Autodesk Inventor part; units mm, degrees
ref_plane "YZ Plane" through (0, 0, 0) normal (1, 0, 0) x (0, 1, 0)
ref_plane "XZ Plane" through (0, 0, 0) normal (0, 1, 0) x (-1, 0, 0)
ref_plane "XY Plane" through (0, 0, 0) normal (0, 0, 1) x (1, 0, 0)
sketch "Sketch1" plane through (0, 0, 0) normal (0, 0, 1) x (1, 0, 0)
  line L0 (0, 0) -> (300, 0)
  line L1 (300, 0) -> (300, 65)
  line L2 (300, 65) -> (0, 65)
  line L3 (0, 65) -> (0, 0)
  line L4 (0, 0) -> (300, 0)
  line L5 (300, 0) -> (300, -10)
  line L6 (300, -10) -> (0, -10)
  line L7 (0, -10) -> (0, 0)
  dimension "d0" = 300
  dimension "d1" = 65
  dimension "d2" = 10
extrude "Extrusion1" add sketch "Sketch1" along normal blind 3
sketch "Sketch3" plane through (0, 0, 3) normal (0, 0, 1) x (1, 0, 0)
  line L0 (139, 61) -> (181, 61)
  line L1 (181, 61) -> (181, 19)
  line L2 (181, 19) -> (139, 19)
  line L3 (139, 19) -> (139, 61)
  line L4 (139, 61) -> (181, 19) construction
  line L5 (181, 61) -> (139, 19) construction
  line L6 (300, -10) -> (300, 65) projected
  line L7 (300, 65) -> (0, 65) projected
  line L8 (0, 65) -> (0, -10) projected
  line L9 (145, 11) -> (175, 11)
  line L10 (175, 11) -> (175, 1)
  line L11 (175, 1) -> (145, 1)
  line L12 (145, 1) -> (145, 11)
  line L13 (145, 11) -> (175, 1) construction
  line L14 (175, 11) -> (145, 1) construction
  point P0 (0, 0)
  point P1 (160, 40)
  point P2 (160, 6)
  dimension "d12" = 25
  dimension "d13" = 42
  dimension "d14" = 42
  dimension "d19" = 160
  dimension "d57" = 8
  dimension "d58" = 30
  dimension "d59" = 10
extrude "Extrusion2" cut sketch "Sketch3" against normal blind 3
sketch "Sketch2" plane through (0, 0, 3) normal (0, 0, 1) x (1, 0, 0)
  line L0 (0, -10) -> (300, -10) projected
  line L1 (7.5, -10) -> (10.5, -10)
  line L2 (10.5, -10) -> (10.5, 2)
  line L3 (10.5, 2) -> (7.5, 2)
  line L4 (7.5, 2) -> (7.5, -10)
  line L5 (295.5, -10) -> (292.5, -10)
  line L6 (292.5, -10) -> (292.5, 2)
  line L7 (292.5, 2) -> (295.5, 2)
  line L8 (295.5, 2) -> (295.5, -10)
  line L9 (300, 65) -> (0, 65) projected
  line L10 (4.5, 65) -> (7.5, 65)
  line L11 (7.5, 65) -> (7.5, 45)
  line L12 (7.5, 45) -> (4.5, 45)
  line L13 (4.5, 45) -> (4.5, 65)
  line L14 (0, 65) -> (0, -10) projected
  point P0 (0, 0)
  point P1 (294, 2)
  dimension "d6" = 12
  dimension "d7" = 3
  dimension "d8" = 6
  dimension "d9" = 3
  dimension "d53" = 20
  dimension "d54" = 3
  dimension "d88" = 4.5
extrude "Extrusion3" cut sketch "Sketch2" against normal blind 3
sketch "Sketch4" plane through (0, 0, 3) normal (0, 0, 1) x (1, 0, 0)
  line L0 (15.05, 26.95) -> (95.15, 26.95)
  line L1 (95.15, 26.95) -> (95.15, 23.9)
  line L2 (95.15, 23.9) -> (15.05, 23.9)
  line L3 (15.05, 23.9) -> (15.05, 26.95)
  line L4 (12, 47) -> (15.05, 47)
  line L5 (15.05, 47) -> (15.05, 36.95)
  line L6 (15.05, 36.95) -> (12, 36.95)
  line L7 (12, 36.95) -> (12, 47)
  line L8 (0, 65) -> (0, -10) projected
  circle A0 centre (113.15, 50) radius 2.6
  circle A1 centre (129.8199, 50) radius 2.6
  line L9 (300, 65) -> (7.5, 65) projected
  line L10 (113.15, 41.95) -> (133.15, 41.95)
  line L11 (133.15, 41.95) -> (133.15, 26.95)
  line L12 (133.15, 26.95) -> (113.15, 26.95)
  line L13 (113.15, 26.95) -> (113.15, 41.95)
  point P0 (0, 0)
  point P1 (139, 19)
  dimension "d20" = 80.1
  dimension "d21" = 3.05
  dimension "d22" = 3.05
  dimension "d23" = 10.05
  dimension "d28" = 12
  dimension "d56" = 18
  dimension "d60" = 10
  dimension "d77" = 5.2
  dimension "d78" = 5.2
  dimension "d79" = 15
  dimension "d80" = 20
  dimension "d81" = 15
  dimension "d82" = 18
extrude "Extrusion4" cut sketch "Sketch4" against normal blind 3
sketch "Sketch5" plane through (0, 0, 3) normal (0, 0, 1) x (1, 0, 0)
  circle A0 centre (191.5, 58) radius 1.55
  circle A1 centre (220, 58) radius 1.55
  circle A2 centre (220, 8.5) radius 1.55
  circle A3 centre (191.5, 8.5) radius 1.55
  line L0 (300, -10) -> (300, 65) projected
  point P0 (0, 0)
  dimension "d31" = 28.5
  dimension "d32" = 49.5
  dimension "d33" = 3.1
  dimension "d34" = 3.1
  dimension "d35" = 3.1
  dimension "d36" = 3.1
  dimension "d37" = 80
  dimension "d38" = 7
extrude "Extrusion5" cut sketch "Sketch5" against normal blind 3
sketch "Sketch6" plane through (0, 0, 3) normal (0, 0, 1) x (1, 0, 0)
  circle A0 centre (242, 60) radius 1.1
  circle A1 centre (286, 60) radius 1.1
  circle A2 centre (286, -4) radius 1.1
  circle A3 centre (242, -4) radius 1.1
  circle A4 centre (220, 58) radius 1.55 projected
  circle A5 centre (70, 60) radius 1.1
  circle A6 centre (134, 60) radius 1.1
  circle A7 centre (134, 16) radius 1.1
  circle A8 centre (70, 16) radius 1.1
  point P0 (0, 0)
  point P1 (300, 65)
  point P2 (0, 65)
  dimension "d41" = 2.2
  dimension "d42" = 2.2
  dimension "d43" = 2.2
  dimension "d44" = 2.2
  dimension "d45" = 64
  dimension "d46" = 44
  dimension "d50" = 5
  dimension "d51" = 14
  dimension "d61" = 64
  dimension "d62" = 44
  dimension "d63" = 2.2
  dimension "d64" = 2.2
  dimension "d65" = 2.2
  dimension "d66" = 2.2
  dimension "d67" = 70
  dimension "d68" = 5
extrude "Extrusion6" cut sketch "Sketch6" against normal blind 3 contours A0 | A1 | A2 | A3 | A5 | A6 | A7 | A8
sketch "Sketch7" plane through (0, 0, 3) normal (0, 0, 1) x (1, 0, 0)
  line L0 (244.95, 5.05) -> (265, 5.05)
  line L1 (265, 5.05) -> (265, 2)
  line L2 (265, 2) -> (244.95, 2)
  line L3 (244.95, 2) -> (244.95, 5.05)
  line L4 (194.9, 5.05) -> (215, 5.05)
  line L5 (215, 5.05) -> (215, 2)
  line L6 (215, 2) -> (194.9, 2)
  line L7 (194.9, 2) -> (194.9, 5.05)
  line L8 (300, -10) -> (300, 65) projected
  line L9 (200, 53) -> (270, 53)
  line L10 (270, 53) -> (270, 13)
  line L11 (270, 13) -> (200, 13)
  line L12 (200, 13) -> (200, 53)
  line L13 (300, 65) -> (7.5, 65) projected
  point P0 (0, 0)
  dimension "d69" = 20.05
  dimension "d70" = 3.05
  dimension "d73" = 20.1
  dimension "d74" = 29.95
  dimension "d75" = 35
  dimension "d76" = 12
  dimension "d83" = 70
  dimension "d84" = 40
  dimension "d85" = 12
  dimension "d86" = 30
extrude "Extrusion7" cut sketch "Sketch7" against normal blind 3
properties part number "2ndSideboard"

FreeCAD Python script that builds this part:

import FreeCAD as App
import Part
import Sketcher

V = App.Vector


def add_polygon(sketch, points):
    """Adds a closed chain of lines whose ends are joined by coincident constraints."""
    first, n = sketch.GeometryCount, len(points)
    for a, b in zip(points, points[1:] + points[:1]):
        sketch.addGeometry(Part.LineSegment(App.Vector(*a, 0), App.Vector(*b, 0)), False)
    for i in range(n):
        sketch.addConstraint(Sketcher.Constraint("Coincident", first + i, 2, first + (i + 1) % n, 1))

doc = App.newDocument("Part")
body = doc.addObject("PartDesign::Body", "Body")

sketch1 = body.newObject("Sketcher::SketchObject", "Sketch")
sketch1.AttachmentSupport = (doc.getObject("XY_Plane"), [""])
sketch1.MapMode = "FlatFace"
add_polygon(sketch1, [(0, 65), (0, -10), (300, -10), (300, 65)])
sketch1.addConstraint([
    Sketcher.Constraint("Vertical", 0),
    Sketcher.Constraint("Horizontal", 1),
    Sketcher.Constraint("Vertical", 2),
    Sketcher.Constraint("Horizontal", 3),
    Sketcher.Constraint("PointOnObject", 0, 2, -2),
    Sketcher.Constraint("DistanceX", 1, 1, 1, 2, 300.0),
    Sketcher.Constraint("DistanceY", 0, 2, -1, 1, 10.0),
    Sketcher.Constraint("DistanceY", -1, 1, 2, 2, 65.0),
])
pad1 = body.newObject("PartDesign::Pad", "Pad")
pad1.Profile = sketch1
pad1.Length = 3

sketch2 = body.newObject("Sketcher::SketchObject", "Sketch001")
sketch2.AttachmentSupport = (doc.getObject("XY_Plane"), [""])
sketch2.MapMode = "FlatFace"
sketch2.AttachmentOffset = App.Placement(V(0, 0, 3), App.Rotation())
add_polygon(sketch2, [(181, 61), (139, 61), (139, 19), (181, 19)])
add_polygon(sketch2, [(175, 11), (145, 11), (145, 1), (175, 1)])
sketch2.addConstraint([
    Sketcher.Constraint("Horizontal", 0),
    Sketcher.Constraint("Vertical", 1),
    Sketcher.Constraint("Horizontal", 2),
    Sketcher.Constraint("Vertical", 3),
    Sketcher.Constraint("Horizontal", 4),
    Sketcher.Constraint("Vertical", 5),
    Sketcher.Constraint("Horizontal", 6),
    Sketcher.Constraint("Vertical", 7),
    Sketcher.Constraint("Equal", 2, 1),
    Sketcher.Constraint("DistanceX", 0, 2, 0, 1, 42.0),
    Sketcher.Constraint("DistanceX", 4, 2, 4, 1, 30.0),
    Sketcher.Constraint("DistanceY", 5, 2, 5, 1, 10.0),
    Sketcher.Constraint("DistanceY", 4, 2, 1, 2, 8.0),
    Sketcher.Constraint("DistanceX", -1, 1, 0, 2, 139.0),
    Sketcher.Constraint("DistanceY", -1, 1, 0, 2, 61.0),
    Sketcher.Constraint("DistanceX", -1, 1, 4, 2, 145.0),
])
pocket1 = body.newObject("PartDesign::Pocket", "Pocket")
pocket1.Profile = sketch2
pocket1.Length = 3

sketch3 = body.newObject("Sketcher::SketchObject", "Sketch002")
sketch3.AttachmentSupport = (doc.getObject("XY_Plane"), [""])
sketch3.MapMode = "FlatFace"
sketch3.AttachmentOffset = App.Placement(V(0, 0, 3), App.Rotation())
add_polygon(sketch3, [(292.5, 2), (292.5, -10), (295.5, -10), (295.5, 2)])
add_polygon(sketch3, [(7.5, 2), (7.5, -10), (10.5, -10), (10.5, 2)])
add_polygon(sketch3, [(7.5, 65), (4.5, 65), (4.5, 45), (7.5, 45)])
sketch3.addConstraint([
    Sketcher.Constraint("Vertical", 0),
    Sketcher.Constraint("Horizontal", 1),
    Sketcher.Constraint("Vertical", 2),
    Sketcher.Constraint("Horizontal", 3),
    Sketcher.Constraint("Vertical", 4),
    Sketcher.Constraint("Horizontal", 5),
    Sketcher.Constraint("Vertical", 6),
    Sketcher.Constraint("Horizontal", 7),
    Sketcher.Constraint("Horizontal", 8),
    Sketcher.Constraint("Vertical", 9),
    Sketcher.Constraint("Horizontal", 10),
    Sketcher.Constraint("Vertical", 11),
    Sketcher.Constraint("Horizontal", 1, 2, 4, 2),
    Sketcher.Constraint("Horizontal", 3, 2, 6, 2),
    Sketcher.Constraint("Vertical", 7, 2, 10, 2),
    Sketcher.Constraint("Equal", 3, 5),
    Sketcher.Constraint("Equal", 7, 8),
    Sketcher.Constraint("DistanceX", 1, 1, 1, 2, 3.0),
    Sketcher.Constraint("DistanceY", 0, 2, 0, 1, 12.0),
    Sketcher.Constraint("DistanceY", 9, 2, 9, 1, 20.0),
    Sketcher.Constraint("DistanceX", -1, 1, 8, 2, 4.5),
    Sketcher.Constraint("DistanceY", 0, 2, -1, 1, 10.0),
    Sketcher.Constraint("DistanceY", -1, 1, 8, 2, 65.0),
    Sketcher.Constraint("DistanceX", 4, 2, 0, 2, 285.0),
])
pocket2 = body.newObject("PartDesign::Pocket", "Pocket001")
pocket2.Profile = sketch3
pocket2.Length = 3

sketch4 = body.newObject("Sketcher::SketchObject", "Sketch003")
sketch4.AttachmentSupport = (doc.getObject("XY_Plane"), [""])
sketch4.MapMode = "FlatFace"
sketch4.AttachmentOffset = App.Placement(V(0, 0, 3), App.Rotation())
add_polygon(sketch4, [(95.2, 26.9), (15.1, 26.9), (15.1, 23.9), (95.2, 23.9)])
add_polygon(sketch4, [(15.1, 47), (12, 47), (12, 37), (15.1, 37)])
sketch4.addGeometry(Part.Circle(V(113.2, 50, 0), V(0, 0, 1), 2.6), False)
sketch4.addGeometry(Part.Circle(V(129.8, 50, 0), V(0, 0, 1), 2.6), False)
add_polygon(sketch4, [(133.2, 42), (113.2, 42), (113.2, 26.9), (133.2, 26.9)])
sketch4.addConstraint([
    Sketcher.Constraint("Horizontal", 0),
    Sketcher.Constraint("Vertical", 1),
    Sketcher.Constraint("Horizontal", 2),
    Sketcher.Constraint("Vertical", 3),
    Sketcher.Constraint("Horizontal", 4),
    Sketcher.Constraint("Vertical", 5),
    Sketcher.Constraint("Horizontal", 6),
    Sketcher.Constraint("Vertical", 7),
    Sketcher.Constraint("Horizontal", 10),
    Sketcher.Constraint("Vertical", 11),
    Sketcher.Constraint("Horizontal", 12),
    Sketcher.Constraint("Vertical", 13),
    Sketcher.Constraint("Equal", 8, 9),
    Sketcher.Constraint("Horizontal", 8, 3, 9, 3),
    Sketcher.Constraint("Horizontal", 3, 2, 11, 2),
    Sketcher.Constraint("Vertical", 1, 2, 6, 2),
    Sketcher.Constraint("Vertical", 8, 3, 10, 2),
    Sketcher.Constraint("Equal", 6, 1),
    Sketcher.Constraint("Diameter", 8, 5.2),
    Sketcher.Constraint("DistanceX", 10, 2, 10, 1, 20.0),
    Sketcher.Constraint("DistanceY", 11, 2, 11, 1, 15.0),
    Sketcher.Constraint("DistanceX", 0, 2, 0, 1, 80.1),
    Sketcher.Constraint("DistanceX", -1, 1, 4, 2, 12.0),
    Sketcher.Constraint("DistanceX", 2, 2, 8, 3, 18.0),
    Sketcher.Constraint("DistanceY", 0, 2, 5, 2, 10.0),
    Sketcher.Constraint("DistanceX", 4, 2, 4, 1, 3.05),
    Sketcher.Constraint("DistanceY", 5, 2, 5, 1, 10.05),
    Sketcher.Constraint("DistanceY", -1, 1, 8, 3, 50.0),
    Sketcher.Constraint("DistanceY", -1, 1, 4, 2, 47.0),
    Sketcher.Constraint("DistanceX", -1, 1, 9, 3, 129.82),
])
pocket3 = body.newObject("PartDesign::Pocket", "Pocket002")
pocket3.Profile = sketch4
pocket3.Length = 3

sketch5 = body.newObject("Sketcher::SketchObject", "Sketch004")
sketch5.AttachmentSupport = (doc.getObject("XY_Plane"), [""])
sketch5.MapMode = "FlatFace"
sketch5.AttachmentOffset = App.Placement(V(0, 0, 3), App.Rotation())
sketch5.addGeometry([
    Part.Circle(V(191.5, 58, 0), V(0, 0, 1), 1.6),
    Part.Circle(V(220, 58, 0), V(0, 0, 1), 1.6),
    Part.Circle(V(220, 8.5, 0), V(0, 0, 1), 1.6),
    Part.Circle(V(191.5, 8.5, 0), V(0, 0, 1), 1.6),
], False)
sketch5.addConstraint([
    Sketcher.Constraint("Equal", 0, 1),
    Sketcher.Constraint("Equal", 1, 2),
    Sketcher.Constraint("Equal", 2, 3),
    Sketcher.Constraint("Horizontal", 0, 3, 1, 3),
    Sketcher.Constraint("Horizontal", 2, 3, 3, 3),
    Sketcher.Constraint("Vertical", 1, 3, 2, 3),
    Sketcher.Constraint("Vertical", 0, 3, 3, 3),
    Sketcher.Constraint("Diameter", 0, 3.1),
    Sketcher.Constraint("DistanceX", 0, 3, 1, 3, 28.5),
    Sketcher.Constraint("DistanceY", 2, 3, 1, 3, 49.5),
    Sketcher.Constraint("DistanceY", -1, 1, 0, 3, 58.0),
    Sketcher.Constraint("DistanceX", -1, 1, 1, 3, 220.0),
])
pocket4 = body.newObject("PartDesign::Pocket", "Pocket003")
pocket4.Profile = sketch5
pocket4.Length = 3

sketch6 = body.newObject("Sketcher::SketchObject", "Sketch005")
sketch6.AttachmentSupport = (doc.getObject("XY_Plane"), [""])
sketch6.MapMode = "FlatFace"
sketch6.AttachmentOffset = App.Placement(V(0, 0, 3), App.Rotation())
sketch6.addGeometry([
    Part.Circle(V(242, 60, 0), V(0, 0, 1), 1.1),
    Part.Circle(V(286, 60, 0), V(0, 0, 1), 1.1),
    Part.Circle(V(286, -4, 0), V(0, 0, 1), 1.1),
    Part.Circle(V(242, -4, 0), V(0, 0, 1), 1.1),
    Part.Circle(V(70, 60, 0), V(0, 0, 1), 1.1),
    Part.Circle(V(134, 60, 0), V(0, 0, 1), 1.1),
    Part.Circle(V(134, 16, 0), V(0, 0, 1), 1.1),
    Part.Circle(V(70, 16, 0), V(0, 0, 1), 1.1),
], False)
sketch6.addConstraint([
    Sketcher.Constraint("Equal", 0, 1),
    Sketcher.Constraint("Equal", 1, 2),
    Sketcher.Constraint("Equal", 2, 3),
    Sketcher.Constraint("Equal", 3, 4),
    Sketcher.Constraint("Equal", 4, 5),
    Sketcher.Constraint("Equal", 5, 6),
    Sketcher.Constraint("Equal", 6, 7),
    Sketcher.Constraint("Horizontal", 0, 3, 1, 3),
    Sketcher.Constraint("Horizontal", 2, 3, 3, 3),
    Sketcher.Constraint("Horizontal", 1, 3, 4, 3),
    Sketcher.Constraint("Horizontal", 4, 3, 5, 3),
    Sketcher.Constraint("Horizontal", 6, 3, 7, 3),
    Sketcher.Constraint("Vertical", 1, 3, 2, 3),
    Sketcher.Constraint("Vertical", 0, 3, 3, 3),
    Sketcher.Constraint("Vertical", 5, 3, 6, 3),
    Sketcher.Constraint("Vertical", 4, 3, 7, 3),
    Sketcher.Constraint("Diameter", 0, 2.2),
    Sketcher.Constraint("DistanceX", -1, 1, 4, 3, 70.0),
    Sketcher.Constraint("DistanceX", 0, 3, 1, 3, 44.0),
    Sketcher.Constraint("DistanceY", 2, 3, 1, 3, 64.0),
    Sketcher.Constraint("DistanceX", 4, 3, 5, 3, 64.0),
    Sketcher.Constraint("DistanceY", 6, 3, 5, 3, 44.0),
    Sketcher.Constraint("DistanceX", -1, 1, 0, 3, 242.0),
    Sketcher.Constraint("DistanceY", -1, 1, 0, 3, 60.0),
])
pocket5 = body.newObject("PartDesign::Pocket", "Pocket004")
pocket5.Profile = sketch6
pocket5.Length = 3

sketch7 = body.newObject("Sketcher::SketchObject", "Sketch006")
sketch7.AttachmentSupport = (doc.getObject("XY_Plane"), [""])
sketch7.MapMode = "FlatFace"
sketch7.AttachmentOffset = App.Placement(V(0, 0, 3), App.Rotation())
add_polygon(sketch7, [(265, 5), (244.9, 5), (244.9, 2), (265, 2)])
add_polygon(sketch7, [(215, 5), (194.9, 5), (194.9, 2), (215, 2)])
add_polygon(sketch7, [(270, 53), (200, 53), (200, 13), (270, 13)])
sketch7.addConstraint([
    Sketcher.Constraint("Horizontal", 0),
    Sketcher.Constraint("Vertical", 1),
    Sketcher.Constraint("Horizontal", 2),
    Sketcher.Constraint("Vertical", 3),
    Sketcher.Constraint("Horizontal", 4),
    Sketcher.Constraint("Vertical", 5),
    Sketcher.Constraint("Horizontal", 6),
    Sketcher.Constraint("Vertical", 7),
    Sketcher.Constraint("Horizontal", 8),
    Sketcher.Constraint("Vertical", 9),
    Sketcher.Constraint("Horizontal", 10),
    Sketcher.Constraint("Vertical", 11),
    Sketcher.Constraint("Horizontal", 3, 2, 4, 2),
    Sketcher.Constraint("Horizontal", 2, 2, 5, 2),
    Sketcher.Constraint("DistanceX", 8, 2, 8, 1, 70.0),
    Sketcher.Constraint("DistanceY", 9, 2, 9, 1, 40.0),
    Sketcher.Constraint("DistanceX", 4, 2, 4, 1, 20.1),
    Sketcher.Constraint("DistanceX", 0, 2, 0, 1, 20.05),
    Sketcher.Constraint("DistanceY", 1, 2, 1, 1, 3.05),
    Sketcher.Constraint("DistanceX", 6, 2, 1, 2, 29.95),
    Sketcher.Constraint("DistanceY", -1, 1, 1, 2, 2.0),
    Sketcher.Constraint("DistanceX", -1, 1, 2, 2, 265.0),
    Sketcher.Constraint("DistanceX", -1, 1, 8, 2, 200.0),
    Sketcher.Constraint("DistanceY", -1, 1, 8, 2, 53.0),
])
pocket6 = body.newObject("PartDesign::Pocket", "Pocket005")
pocket6.Profile = sketch7
pocket6.Length = 3

doc.recompute()
